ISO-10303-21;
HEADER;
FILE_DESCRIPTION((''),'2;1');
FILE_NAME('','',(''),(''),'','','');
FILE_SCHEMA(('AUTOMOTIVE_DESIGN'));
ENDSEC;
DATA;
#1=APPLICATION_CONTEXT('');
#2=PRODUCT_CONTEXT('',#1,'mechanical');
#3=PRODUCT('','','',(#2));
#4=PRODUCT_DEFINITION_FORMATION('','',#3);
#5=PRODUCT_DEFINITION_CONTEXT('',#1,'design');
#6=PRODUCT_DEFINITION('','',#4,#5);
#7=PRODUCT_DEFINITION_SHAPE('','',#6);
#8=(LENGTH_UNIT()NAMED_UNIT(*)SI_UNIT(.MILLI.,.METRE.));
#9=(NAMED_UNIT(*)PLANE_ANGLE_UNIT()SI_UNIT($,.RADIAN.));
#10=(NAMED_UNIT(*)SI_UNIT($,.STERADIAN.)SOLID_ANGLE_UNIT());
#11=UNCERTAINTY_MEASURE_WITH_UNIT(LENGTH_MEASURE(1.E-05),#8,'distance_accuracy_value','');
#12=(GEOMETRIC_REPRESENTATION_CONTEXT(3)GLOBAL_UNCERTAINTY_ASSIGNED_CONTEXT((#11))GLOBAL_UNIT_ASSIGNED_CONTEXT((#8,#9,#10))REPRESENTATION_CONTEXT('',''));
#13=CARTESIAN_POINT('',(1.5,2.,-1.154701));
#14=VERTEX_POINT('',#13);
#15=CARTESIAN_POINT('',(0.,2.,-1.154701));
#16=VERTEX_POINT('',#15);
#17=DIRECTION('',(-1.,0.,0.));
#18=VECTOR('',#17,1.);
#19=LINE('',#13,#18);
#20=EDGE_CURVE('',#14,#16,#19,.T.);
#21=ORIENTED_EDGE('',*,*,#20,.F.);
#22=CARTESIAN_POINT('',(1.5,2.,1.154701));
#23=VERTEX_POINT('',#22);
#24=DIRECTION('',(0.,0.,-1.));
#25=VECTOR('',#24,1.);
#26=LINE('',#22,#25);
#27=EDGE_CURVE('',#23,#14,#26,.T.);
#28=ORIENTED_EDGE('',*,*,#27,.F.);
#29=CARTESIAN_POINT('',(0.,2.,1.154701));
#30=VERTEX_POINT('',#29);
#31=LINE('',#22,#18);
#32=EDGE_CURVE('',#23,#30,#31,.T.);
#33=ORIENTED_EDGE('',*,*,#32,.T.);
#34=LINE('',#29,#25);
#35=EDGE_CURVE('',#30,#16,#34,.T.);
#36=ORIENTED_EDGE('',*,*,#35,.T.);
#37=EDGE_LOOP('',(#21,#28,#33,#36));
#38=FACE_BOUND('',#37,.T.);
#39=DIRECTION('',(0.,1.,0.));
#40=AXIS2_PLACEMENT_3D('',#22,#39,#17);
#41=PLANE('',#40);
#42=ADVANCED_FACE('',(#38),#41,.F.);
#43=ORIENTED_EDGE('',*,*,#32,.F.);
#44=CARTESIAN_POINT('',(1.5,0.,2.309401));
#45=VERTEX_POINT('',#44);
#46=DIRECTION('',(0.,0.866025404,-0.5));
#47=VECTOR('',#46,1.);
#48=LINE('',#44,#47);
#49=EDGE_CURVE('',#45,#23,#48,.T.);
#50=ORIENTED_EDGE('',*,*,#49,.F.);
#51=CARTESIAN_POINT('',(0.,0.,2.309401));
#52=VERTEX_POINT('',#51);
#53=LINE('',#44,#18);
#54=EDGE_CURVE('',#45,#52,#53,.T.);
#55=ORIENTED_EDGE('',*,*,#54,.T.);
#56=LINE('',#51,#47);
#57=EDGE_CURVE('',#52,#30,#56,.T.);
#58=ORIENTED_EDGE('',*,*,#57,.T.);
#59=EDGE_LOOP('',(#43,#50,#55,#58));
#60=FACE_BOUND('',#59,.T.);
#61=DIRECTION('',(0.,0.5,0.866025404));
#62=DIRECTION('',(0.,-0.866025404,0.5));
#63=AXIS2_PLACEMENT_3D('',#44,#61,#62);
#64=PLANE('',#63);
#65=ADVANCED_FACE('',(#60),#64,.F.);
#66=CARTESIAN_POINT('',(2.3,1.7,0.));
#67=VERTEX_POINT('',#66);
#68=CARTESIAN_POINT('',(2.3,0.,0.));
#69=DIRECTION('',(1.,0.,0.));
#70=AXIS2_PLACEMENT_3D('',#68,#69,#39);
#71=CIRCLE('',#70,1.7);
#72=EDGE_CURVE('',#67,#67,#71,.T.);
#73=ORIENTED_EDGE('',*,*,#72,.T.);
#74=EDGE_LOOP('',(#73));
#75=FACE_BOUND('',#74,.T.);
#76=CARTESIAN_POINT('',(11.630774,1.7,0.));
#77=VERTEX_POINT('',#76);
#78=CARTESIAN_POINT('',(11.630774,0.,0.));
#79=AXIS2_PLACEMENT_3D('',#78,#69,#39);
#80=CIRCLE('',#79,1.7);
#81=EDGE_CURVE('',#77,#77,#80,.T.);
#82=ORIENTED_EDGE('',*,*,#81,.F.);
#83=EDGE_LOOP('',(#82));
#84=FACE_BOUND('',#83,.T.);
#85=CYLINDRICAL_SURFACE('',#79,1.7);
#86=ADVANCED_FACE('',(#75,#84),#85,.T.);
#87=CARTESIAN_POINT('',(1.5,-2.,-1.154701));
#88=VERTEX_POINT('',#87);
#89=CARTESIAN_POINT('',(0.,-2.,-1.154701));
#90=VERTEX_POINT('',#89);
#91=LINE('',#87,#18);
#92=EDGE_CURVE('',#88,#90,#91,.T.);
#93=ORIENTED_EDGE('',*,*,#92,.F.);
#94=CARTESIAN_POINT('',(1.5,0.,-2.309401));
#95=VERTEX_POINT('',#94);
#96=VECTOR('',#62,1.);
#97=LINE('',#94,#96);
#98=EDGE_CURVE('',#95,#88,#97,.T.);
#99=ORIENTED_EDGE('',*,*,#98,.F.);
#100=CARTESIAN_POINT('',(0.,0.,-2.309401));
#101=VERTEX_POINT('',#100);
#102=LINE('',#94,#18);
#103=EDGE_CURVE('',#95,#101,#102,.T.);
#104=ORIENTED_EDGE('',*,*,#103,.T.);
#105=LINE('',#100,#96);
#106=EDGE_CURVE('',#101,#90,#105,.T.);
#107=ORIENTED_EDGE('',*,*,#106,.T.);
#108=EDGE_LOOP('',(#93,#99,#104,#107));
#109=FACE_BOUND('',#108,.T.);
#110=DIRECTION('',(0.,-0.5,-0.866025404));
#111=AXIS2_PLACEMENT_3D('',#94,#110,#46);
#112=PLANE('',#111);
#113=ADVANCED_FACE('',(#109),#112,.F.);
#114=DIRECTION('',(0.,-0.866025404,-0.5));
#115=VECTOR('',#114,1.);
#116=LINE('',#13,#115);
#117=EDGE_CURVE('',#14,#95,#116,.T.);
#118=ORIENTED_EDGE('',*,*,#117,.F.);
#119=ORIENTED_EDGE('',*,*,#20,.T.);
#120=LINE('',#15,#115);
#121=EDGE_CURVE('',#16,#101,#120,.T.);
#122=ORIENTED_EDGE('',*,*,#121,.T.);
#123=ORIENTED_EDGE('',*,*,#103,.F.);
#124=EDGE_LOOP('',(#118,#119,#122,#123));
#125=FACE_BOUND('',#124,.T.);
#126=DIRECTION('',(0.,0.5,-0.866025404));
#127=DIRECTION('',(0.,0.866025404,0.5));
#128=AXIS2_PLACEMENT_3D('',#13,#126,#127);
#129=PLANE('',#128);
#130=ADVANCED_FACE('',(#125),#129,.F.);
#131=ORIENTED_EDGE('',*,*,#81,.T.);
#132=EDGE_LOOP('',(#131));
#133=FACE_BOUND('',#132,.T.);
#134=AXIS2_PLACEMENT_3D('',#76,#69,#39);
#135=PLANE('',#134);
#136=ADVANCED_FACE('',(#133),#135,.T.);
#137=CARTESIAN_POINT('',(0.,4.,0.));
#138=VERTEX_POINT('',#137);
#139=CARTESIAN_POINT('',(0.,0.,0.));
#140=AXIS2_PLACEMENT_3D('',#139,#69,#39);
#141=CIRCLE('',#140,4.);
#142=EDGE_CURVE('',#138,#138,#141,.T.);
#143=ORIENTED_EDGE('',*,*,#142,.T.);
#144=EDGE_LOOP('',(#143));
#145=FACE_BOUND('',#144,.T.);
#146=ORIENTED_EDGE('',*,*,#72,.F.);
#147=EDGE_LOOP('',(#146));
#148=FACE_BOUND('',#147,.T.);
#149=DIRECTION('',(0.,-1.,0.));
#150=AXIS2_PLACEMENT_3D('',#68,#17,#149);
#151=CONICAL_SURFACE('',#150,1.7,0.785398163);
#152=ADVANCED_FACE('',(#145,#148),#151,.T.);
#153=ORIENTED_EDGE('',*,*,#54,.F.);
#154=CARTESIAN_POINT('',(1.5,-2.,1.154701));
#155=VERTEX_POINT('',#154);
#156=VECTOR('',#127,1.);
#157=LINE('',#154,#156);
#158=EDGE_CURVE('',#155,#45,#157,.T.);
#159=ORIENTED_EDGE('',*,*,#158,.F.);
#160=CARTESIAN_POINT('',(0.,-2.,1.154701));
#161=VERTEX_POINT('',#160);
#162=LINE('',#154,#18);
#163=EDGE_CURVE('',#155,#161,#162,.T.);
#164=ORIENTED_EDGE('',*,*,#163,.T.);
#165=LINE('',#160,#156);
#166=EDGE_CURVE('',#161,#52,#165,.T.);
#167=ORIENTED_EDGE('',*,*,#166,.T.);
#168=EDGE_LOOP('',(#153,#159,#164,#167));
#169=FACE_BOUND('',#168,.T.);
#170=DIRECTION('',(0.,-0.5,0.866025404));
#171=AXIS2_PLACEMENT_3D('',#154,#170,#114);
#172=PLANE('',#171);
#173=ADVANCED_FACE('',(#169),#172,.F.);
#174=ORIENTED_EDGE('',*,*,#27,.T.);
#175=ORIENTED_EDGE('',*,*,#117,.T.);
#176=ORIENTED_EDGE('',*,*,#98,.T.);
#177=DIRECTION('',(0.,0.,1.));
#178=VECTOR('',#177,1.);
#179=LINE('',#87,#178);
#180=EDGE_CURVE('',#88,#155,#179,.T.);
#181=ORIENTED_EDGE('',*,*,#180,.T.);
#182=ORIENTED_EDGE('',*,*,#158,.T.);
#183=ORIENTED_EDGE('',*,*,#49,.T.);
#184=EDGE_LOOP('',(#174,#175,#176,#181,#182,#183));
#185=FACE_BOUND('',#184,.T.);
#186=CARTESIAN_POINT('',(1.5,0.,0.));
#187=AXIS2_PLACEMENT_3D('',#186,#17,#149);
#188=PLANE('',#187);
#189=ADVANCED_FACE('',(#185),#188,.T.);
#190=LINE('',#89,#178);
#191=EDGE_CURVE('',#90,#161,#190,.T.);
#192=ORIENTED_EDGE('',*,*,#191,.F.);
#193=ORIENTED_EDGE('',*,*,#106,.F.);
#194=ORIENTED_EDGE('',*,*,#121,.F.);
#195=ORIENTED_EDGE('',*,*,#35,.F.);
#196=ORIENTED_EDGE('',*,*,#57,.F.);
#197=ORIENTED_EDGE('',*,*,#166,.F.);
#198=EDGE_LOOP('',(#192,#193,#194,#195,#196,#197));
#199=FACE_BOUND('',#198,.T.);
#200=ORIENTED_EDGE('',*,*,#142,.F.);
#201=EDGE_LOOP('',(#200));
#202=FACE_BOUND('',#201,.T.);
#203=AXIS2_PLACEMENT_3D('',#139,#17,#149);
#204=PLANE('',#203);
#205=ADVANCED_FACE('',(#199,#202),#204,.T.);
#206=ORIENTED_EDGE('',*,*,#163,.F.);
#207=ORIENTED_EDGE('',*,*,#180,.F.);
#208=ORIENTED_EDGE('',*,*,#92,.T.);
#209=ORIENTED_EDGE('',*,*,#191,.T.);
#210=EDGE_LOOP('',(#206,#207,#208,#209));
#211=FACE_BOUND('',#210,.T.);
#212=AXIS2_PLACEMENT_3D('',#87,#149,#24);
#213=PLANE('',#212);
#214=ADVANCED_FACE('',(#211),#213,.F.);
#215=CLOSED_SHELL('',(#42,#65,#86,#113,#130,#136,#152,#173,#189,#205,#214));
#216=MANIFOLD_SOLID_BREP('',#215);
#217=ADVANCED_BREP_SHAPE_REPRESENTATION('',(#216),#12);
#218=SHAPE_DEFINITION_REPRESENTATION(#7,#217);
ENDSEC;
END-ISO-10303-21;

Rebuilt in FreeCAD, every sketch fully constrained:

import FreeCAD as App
import Part
import Sketcher

V = App.Vector
Q = App.Units.Quantity

doc = App.newDocument("Part")
body = doc.addObject("PartDesign::Body", "Body")

# Sketch on XY plane
sketch1 = body.newObject("Sketcher::SketchObject", "Sketch")
sketch1.AttachmentSupport = (doc.getObject("XY_Plane"), [""])
sketch1.MapMode = "FlatFace"
sketch1.addGeometry([
    Part.LineSegment(V(0, 4, 0), V(0, 0, 0)),  # 0
    Part.LineSegment(V(0, 0, 0), V(11.6, 0, 0)),  # 1
    Part.LineSegment(V(11.6, 0, 0), V(11.6, 1.7, 0)),  # 2
    Part.LineSegment(V(11.6, 1.7, 0), V(2.3, 1.7, 0)),  # 3
    Part.LineSegment(V(2.3, 1.7, 0), V(0, 4, 0)),  # 4
], False)
sketch1.addConstraint([
    Sketcher.Constraint("Coincident", 0, 2, 1, 1),
    Sketcher.Constraint("Coincident", 1, 2, 2, 1),
    Sketcher.Constraint("Coincident", 2, 2, 3, 1),
    Sketcher.Constraint("Coincident", 3, 2, 4, 1),
    Sketcher.Constraint("Coincident", 4, 2, 0, 1),
    Sketcher.Constraint("Vertical", 0),
    Sketcher.Constraint("Horizontal", 1),
    Sketcher.Constraint("Vertical", 2),
    Sketcher.Constraint("Horizontal", 3),
    Sketcher.Constraint("Coincident", 0, 2, -1, 1),
    Sketcher.Constraint("DistanceY", 0, 2, 0, 1, Q("4 mm")),
    Sketcher.Constraint("Angle", 4, Q("135 deg")),
    Sketcher.Constraint("DistanceY", 2, 1, 2, 2, Q("1.7 mm")),
    Sketcher.Constraint("DistanceX", 1, 1, 1, 2, Q("11.630774 mm")),
])
revolution = body.newObject("PartDesign::Revolution", "Revolution")
revolution.Profile = sketch1
revolution.ReferenceAxis = (sketch1, ["H_Axis"])
revolution.Angle = 360

# Sketch on YZ plane
sketch2 = body.newObject("Sketcher::SketchObject", "Sketch001")
sketch2.AttachmentSupport = (doc.getObject("YZ_Plane"), [""])
sketch2.MapMode = "FlatFace"
sketch2.addGeometry([
    Part.LineSegment(V(-2, 1.2, 0), V(0, 2.3, 0)),  # 0
    Part.LineSegment(V(0, 2.3, 0), V(2, 1.2, 0)),  # 1
    Part.LineSegment(V(2, 1.2, 0), V(2, -1.2, 0)),  # 2
    Part.LineSegment(V(2, -1.2, 0), V(0, -2.3, 0)),  # 3
    Part.LineSegment(V(0, -2.3, 0), V(-2, -1.2, 0)),  # 4
    Part.LineSegment(V(-2, -1.2, 0), V(-2, 1.2, 0)),  # 5
], False)
sketch2.addConstraint([
    Sketcher.Constraint("Coincident", 0, 2, 1, 1),
    Sketcher.Constraint("Coincident", 1, 2, 2, 1),
    Sketcher.Constraint("Coincident", 2, 2, 3, 1),
    Sketcher.Constraint("Coincident", 3, 2, 4, 1),
    Sketcher.Constraint("Coincident", 4, 2, 5, 1),
    Sketcher.Constraint("Coincident", 5, 2, 0, 1),
    Sketcher.Constraint("Vertical", 2),
    Sketcher.Constraint("Vertical", 5),
    Sketcher.Constraint("Symmetric", 0, 2, 3, 2, -1, 1),
    Sketcher.Constraint("Symmetric", 1, 2, 4, 2, -1, 1),
    Sketcher.Constraint("PointOnObject", 0, 2, -2),
    Sketcher.Constraint("Parallel", 0, 3),
    Sketcher.Constraint("Horizontal", 2, 2, 4, 2),
    Sketcher.Constraint("Angle", 0, Q("30 deg")),
    Sketcher.Constraint("DistanceX", -1, 1, 1, 2, Q("2 mm")),
    Sketcher.Constraint("DistanceY", 2, 2, 2, 1, Q("2.309401 mm")),
])
pocket1 = body.newObject("PartDesign::Pocket", "Pocket")
pocket1.Profile = sketch2
pocket1.Length = 1.5
pocket1.Reversed = True

doc.recompute()
